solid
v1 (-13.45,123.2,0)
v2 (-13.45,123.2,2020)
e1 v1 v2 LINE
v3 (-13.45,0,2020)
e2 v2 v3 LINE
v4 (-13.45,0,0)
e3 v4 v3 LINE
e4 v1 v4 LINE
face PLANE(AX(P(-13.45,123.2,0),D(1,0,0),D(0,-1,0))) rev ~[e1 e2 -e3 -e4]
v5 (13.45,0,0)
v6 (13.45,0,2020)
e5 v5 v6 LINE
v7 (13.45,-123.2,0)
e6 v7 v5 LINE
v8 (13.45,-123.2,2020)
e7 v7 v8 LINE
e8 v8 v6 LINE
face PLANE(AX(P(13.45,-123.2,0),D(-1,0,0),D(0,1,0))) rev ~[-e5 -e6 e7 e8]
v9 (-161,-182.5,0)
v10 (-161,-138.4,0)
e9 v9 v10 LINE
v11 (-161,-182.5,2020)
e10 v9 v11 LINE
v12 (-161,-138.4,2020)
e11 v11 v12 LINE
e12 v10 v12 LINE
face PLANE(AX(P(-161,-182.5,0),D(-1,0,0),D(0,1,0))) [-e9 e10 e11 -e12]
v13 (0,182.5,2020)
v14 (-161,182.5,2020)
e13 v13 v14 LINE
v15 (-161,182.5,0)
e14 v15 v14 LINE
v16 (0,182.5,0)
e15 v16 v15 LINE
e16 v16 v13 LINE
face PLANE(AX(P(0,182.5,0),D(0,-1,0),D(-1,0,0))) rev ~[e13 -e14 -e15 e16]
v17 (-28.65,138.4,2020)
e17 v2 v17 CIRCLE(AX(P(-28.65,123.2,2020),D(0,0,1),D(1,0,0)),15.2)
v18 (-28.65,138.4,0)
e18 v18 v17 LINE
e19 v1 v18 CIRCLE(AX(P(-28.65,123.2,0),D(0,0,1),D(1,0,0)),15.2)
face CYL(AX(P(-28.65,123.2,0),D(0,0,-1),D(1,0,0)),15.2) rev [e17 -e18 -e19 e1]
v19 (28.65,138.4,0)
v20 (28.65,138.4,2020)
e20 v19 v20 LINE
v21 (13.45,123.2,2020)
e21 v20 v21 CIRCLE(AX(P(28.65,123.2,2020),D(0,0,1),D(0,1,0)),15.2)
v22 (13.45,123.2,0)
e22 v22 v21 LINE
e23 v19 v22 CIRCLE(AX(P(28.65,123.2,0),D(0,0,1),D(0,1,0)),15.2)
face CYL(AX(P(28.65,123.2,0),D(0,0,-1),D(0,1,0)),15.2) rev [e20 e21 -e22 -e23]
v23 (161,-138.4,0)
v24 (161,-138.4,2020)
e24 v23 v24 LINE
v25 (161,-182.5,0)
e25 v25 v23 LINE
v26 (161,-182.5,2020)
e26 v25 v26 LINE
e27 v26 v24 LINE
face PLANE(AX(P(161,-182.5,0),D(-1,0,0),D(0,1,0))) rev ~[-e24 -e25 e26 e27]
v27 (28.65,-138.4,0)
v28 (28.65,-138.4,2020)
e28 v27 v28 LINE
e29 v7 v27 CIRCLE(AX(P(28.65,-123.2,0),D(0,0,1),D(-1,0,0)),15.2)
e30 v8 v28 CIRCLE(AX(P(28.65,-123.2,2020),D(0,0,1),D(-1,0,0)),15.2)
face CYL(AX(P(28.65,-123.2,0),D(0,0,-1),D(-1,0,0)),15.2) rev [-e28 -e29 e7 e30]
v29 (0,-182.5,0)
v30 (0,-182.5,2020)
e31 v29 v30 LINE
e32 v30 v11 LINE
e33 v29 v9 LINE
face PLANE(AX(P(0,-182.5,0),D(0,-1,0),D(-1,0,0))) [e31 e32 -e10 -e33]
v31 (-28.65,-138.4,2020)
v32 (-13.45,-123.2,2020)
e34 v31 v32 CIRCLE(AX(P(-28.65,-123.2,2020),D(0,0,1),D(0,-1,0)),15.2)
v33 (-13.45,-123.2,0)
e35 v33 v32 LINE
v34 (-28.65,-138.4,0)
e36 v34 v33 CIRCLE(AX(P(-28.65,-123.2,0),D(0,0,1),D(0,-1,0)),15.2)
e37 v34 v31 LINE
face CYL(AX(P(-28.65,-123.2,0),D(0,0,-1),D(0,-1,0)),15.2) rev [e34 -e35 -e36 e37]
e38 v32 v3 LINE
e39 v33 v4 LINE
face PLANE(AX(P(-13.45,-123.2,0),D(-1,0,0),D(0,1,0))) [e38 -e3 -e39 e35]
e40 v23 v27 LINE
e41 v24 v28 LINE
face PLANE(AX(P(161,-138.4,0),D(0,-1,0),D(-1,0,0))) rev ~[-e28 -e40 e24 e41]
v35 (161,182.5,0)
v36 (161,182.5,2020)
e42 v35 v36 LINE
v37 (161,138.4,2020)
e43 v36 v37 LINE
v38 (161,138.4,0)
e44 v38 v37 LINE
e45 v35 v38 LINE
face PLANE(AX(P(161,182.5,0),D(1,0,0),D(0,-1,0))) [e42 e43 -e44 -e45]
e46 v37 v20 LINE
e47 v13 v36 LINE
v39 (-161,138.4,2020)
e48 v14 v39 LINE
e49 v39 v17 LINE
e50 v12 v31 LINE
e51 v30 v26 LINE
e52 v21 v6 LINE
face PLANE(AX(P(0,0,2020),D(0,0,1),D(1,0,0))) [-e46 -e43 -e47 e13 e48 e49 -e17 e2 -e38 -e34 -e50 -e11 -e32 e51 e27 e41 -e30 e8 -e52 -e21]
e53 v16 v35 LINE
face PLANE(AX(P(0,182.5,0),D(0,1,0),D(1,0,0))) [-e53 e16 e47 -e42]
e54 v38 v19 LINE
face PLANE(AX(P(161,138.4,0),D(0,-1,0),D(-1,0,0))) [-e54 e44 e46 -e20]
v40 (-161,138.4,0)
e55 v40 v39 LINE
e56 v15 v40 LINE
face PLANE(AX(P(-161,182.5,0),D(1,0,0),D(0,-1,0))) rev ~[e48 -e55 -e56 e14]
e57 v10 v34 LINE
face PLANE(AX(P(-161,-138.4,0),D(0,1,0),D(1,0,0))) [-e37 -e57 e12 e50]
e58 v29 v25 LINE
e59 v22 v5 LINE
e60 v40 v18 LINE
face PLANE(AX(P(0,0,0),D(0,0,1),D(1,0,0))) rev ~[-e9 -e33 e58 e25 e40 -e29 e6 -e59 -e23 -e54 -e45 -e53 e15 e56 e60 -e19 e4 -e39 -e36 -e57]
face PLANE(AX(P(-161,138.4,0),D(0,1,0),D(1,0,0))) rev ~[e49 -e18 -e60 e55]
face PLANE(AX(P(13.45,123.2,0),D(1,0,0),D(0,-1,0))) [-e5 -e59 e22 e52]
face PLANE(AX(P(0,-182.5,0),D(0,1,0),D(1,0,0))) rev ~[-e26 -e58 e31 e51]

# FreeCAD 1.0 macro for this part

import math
import FreeCAD as App
import Part
import Sketcher

V = App.Vector

doc = App.newDocument("Part")
body = doc.addObject("PartDesign::Body", "Body")

# Sketch on XY plane
sketch1 = doc.addObject("Sketcher::SketchObject", "Sketch")
body.addObject(sketch1)
sketch1.AttachmentSupport = (doc.XY_Plane, [""])
sketch1.MapMode = "FlatFace"
sketch1.addGeometry(Part.LineSegment(V(-161, -138, 0), V(-161, -182, 0)), False)
sketch1.addGeometry(Part.LineSegment(V(-161, -182, 0), V(161, -182, 0)), False)
sketch1.addGeometry(Part.LineSegment(V(161, -182, 0), V(161, -138, 0)), False)
sketch1.addGeometry(Part.LineSegment(V(161, -138, 0), V(29, -138, 0)), False)
sketch1.addGeometry(Part.ArcOfCircle(Part.Circle(V(29, -123, 0), V(0, 0, 1), 15), math.radians(180), math.radians(270)), False)
sketch1.addGeometry(Part.LineSegment(V(13, -123, 0), V(13, 123, 0)), False)
sketch1.addGeometry(Part.ArcOfCircle(Part.Circle(V(29, 123, 0), V(0, 0, 1), 15), math.radians(90), math.radians(180)), False)
sketch1.addGeometry(Part.LineSegment(V(29, 138, 0), V(161, 138, 0)), False)
sketch1.addGeometry(Part.LineSegment(V(161, 138, 0), V(161, 182, 0)), False)
sketch1.addGeometry(Part.LineSegment(V(161, 182, 0), V(-161, 182, 0)), False)
sketch1.addGeometry(Part.LineSegment(V(-161, 182, 0), V(-161, 138, 0)), False)
sketch1.addGeometry(Part.LineSegment(V(-161, 138, 0), V(-29, 138, 0)), False)
sketch1.addGeometry(Part.ArcOfCircle(Part.Circle(V(-29, 123, 0), V(0, 0, 1), 15), math.radians(0), math.radians(90)), False)
sketch1.addGeometry(Part.LineSegment(V(-13, 123, 0), V(-13, -123, 0)), False)
sketch1.addGeometry(Part.ArcOfCircle(Part.Circle(V(-29, -123, 0), V(0, 0, 1), 15), math.radians(-90), math.radians(0)), False)
sketch1.addGeometry(Part.LineSegment(V(-29, -138, 0), V(-161, -138, 0)), False)
sketch1.addConstraint(Sketcher.Constraint("Coincident", 0, 2, 1, 1))
sketch1.addConstraint(Sketcher.Constraint("Coincident", 1, 2, 2, 1))
sketch1.addConstraint(Sketcher.Constraint("Coincident", 2, 2, 3, 1))
sketch1.addConstraint(Sketcher.Constraint("Tangent", 3, 2, 4, 2))
sketch1.addConstraint(Sketcher.Constraint("Tangent", 4, 1, 5, 1))
sketch1.addConstraint(Sketcher.Constraint("Tangent", 5, 2, 6, 2))
sketch1.addConstraint(Sketcher.Constraint("Tangent", 6, 1, 7, 1))
sketch1.addConstraint(Sketcher.Constraint("Coincident", 7, 2, 8, 1))
sketch1.addConstraint(Sketcher.Constraint("Coincident", 8, 2, 9, 1))
sketch1.addConstraint(Sketcher.Constraint("Coincident", 9, 2, 10, 1))
sketch1.addConstraint(Sketcher.Constraint("Coincident", 10, 2, 11, 1))
sketch1.addConstraint(Sketcher.Constraint("Tangent", 11, 2, 12, 2))
sketch1.addConstraint(Sketcher.Constraint("Tangent", 12, 1, 13, 1))
sketch1.addConstraint(Sketcher.Constraint("Tangent", 13, 2, 14, 2))
sketch1.addConstraint(Sketcher.Constraint("Tangent", 14, 1, 15, 1))
sketch1.addConstraint(Sketcher.Constraint("Coincident", 15, 2, 0, 1))
sketch1.addConstraint(Sketcher.Constraint("Vertical", 0))
sketch1.addConstraint(Sketcher.Constraint("Horizontal", 1))
sketch1.addConstraint(Sketcher.Constraint("Vertical", 2))
sketch1.addConstraint(Sketcher.Constraint("Horizontal", 3))
sketch1.addConstraint(Sketcher.Constraint("Vertical", 5))
sketch1.addConstraint(Sketcher.Constraint("Horizontal", 7))
sketch1.addConstraint(Sketcher.Constraint("Vertical", 8))
sketch1.addConstraint(Sketcher.Constraint("Horizontal", 9))
sketch1.addConstraint(Sketcher.Constraint("Vertical", 10))
sketch1.addConstraint(Sketcher.Constraint("Horizontal", 11))
sketch1.addConstraint(Sketcher.Constraint("Vertical", 13))
sketch1.addConstraint(Sketcher.Constraint("Horizontal", 15))
sketch1.addConstraint(Sketcher.Constraint("Equal", 4, 6))
sketch1.addConstraint(Sketcher.Constraint("Equal", 6, 12))
sketch1.addConstraint(Sketcher.Constraint("Equal", 12, 14))
sketch1.addConstraint(Sketcher.Constraint("Symmetric", 4, 3, 12, 3, -1, 1))
sketch1.addConstraint(Sketcher.Constraint("Symmetric", 0, 2, 8, 2, -1, 1))
sketch1.addConstraint(Sketcher.Constraint("Symmetric", 7, 2, 10, 2, -2))
sketch1.addConstraint(Sketcher.Constraint("Symmetric", 2, 2, 15, 2, -2))
sketch1.addConstraint(Sketcher.Constraint("Radius", 4, 15.2))
sketch1.addConstraint(Sketcher.Constraint("DistanceY", 0, 2, 0, 1, 44.1))
sketch1.addConstraint(Sketcher.Constraint("DistanceX", 0, 2, -1, 1, 161.0))
sketch1.addConstraint(Sketcher.Constraint("DistanceY", 0, 2, -1, 1, 182.5))
sketch1.addConstraint(Sketcher.Constraint("DistanceX", -1, 1, 4, 1, 13.45))
pad1 = doc.addObject("PartDesign::Pad", "Pad")
body.addObject(pad1)
pad1.Profile = sketch1
pad1.Length = 2020

doc.recompute()
